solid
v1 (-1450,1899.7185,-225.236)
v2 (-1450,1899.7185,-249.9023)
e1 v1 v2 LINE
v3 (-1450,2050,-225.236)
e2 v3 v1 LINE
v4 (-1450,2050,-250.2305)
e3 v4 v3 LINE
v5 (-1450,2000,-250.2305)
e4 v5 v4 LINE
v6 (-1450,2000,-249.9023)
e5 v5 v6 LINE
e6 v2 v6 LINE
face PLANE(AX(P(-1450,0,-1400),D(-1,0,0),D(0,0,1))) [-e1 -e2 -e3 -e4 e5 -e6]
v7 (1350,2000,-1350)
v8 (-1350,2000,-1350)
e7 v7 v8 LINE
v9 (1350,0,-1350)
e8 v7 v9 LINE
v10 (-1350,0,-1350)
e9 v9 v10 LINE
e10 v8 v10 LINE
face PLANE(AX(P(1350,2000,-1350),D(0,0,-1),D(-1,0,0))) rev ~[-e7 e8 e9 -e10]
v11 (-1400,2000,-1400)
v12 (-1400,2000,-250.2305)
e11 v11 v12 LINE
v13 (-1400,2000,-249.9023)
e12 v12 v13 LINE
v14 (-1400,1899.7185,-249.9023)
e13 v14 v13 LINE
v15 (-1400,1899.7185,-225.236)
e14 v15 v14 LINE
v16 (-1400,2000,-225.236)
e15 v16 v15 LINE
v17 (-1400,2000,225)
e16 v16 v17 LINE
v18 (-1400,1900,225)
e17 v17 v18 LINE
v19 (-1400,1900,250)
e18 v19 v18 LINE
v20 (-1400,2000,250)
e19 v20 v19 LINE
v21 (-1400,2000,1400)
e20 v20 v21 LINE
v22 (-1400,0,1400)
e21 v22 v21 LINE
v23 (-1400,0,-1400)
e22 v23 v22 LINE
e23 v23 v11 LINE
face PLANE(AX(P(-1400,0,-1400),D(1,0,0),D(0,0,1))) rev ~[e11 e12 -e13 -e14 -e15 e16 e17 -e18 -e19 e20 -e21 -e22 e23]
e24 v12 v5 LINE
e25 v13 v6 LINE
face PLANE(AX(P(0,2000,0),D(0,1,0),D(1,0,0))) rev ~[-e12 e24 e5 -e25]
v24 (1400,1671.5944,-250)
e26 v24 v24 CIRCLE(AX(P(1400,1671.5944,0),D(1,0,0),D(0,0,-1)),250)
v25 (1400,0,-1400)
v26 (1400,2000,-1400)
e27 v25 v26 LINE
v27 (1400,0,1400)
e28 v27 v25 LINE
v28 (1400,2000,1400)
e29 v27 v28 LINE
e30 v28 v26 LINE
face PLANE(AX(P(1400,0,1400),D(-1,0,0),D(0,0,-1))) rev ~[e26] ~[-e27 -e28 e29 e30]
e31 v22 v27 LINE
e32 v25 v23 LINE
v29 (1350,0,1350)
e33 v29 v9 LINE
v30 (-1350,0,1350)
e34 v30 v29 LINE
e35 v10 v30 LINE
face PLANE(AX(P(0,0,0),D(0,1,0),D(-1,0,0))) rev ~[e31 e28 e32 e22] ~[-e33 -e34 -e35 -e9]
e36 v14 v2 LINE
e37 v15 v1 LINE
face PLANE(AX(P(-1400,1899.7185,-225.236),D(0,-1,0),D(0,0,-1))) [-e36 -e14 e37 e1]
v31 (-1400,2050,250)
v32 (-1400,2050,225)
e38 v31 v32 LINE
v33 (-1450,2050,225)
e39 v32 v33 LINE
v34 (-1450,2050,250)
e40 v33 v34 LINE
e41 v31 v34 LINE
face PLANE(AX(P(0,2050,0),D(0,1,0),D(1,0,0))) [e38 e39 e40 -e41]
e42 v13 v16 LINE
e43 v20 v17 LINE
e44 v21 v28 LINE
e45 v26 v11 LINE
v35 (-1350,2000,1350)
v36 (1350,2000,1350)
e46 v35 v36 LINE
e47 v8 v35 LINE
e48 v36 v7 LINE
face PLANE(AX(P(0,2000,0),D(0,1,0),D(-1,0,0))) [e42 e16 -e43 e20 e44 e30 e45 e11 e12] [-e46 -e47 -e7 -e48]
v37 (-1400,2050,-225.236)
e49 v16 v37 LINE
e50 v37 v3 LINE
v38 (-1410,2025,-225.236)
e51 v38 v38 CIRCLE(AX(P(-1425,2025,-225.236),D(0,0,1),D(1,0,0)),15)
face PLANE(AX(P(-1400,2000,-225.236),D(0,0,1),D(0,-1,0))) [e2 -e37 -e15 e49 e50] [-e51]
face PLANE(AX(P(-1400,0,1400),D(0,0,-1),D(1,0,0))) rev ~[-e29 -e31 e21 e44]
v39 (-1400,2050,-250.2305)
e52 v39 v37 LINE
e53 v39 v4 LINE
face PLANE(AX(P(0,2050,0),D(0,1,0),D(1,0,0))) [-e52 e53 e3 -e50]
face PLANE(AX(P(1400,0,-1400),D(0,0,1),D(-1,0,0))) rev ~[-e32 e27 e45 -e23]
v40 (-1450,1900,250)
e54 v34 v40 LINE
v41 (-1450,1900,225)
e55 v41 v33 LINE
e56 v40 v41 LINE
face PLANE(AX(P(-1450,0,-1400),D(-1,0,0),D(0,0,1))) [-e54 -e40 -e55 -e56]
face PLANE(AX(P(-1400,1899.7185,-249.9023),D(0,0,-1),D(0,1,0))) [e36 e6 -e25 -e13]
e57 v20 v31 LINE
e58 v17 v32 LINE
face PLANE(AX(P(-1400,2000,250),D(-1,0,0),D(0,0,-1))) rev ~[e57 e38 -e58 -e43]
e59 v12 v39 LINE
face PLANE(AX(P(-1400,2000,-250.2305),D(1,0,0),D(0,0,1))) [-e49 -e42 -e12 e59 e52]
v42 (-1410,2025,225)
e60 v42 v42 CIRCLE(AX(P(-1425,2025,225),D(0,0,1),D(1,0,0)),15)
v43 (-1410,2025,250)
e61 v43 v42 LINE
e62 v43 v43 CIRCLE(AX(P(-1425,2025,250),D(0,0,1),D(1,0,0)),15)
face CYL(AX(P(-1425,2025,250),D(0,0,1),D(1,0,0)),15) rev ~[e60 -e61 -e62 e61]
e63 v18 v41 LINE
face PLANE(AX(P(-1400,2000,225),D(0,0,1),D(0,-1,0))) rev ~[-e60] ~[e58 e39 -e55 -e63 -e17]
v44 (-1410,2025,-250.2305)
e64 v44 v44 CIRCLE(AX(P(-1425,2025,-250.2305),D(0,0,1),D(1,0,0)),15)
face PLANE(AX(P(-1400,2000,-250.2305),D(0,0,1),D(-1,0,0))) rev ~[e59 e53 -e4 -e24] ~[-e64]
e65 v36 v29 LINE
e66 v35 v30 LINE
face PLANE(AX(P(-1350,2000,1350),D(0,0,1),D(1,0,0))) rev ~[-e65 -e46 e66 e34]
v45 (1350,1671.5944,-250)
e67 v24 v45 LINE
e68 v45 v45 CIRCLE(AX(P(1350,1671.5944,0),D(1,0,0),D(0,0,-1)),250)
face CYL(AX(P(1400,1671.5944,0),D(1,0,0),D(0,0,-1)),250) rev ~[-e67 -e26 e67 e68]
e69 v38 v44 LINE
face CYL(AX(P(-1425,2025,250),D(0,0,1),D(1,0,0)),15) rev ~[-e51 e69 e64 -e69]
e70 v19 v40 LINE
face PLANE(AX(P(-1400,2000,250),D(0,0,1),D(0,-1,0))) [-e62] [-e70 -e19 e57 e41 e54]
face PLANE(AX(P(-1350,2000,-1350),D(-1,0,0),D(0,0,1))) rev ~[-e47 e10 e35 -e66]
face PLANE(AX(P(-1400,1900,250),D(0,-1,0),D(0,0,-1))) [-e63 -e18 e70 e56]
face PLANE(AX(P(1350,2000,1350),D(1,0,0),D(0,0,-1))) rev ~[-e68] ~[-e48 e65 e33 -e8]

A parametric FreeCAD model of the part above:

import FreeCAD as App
import Part
import Sketcher

V = App.Vector
Q = App.Units.Quantity


def add_polygon(sketch, points):
    """Adds a closed chain of lines whose ends are joined by coincident constraints."""
    first, n = sketch.GeometryCount, len(points)
    for a, b in zip(points, points[1:] + points[:1]):
        sketch.addGeometry(Part.LineSegment(App.Vector(*a, 0), App.Vector(*b, 0)), False)
    for i in range(n):
        sketch.addConstraint(Sketcher.Constraint("Coincident", first + i, 2, first + (i + 1) % n, 1))

doc = App.newDocument("Part")
body = doc.addObject("PartDesign::Body", "Body")

# Sketch on XZ plane
sketch1 = body.newObject("Sketcher::SketchObject", "Sketch")
sketch1.AttachmentSupport = (doc.getObject("XZ_Plane"), [""])
sketch1.MapMode = "FlatFace"
add_polygon(sketch1, [(-1400, -1400), (-1400, 1400), (1400, 1400), (1400, -1400)])  # lines 0-3
sketch1.addConstraint([
    Sketcher.Constraint("Vertical", 0),
    Sketcher.Constraint("Horizontal", 1),
    Sketcher.Constraint("Vertical", 2),
    Sketcher.Constraint("Horizontal", 3),
    Sketcher.Constraint("Symmetric", 0, 2, 2, 2, -1, 1),
    Sketcher.Constraint("Equal", 3, 0),
    Sketcher.Constraint("DistanceX", 1, 1, 1, 2, Q("2800 mm")),
])
pad1 = body.newObject("PartDesign::Pad", "Pad")
pad1.Profile = sketch1
pad1.Length = 2000
pad1.Reversed = True

# Sketch on YZ plane
sketch2 = body.newObject("Sketcher::SketchObject", "Sketch001")
sketch2.AttachmentSupport = (doc.getObject("YZ_Plane"), [""])
sketch2.MapMode = "FlatFace"
sketch2.AttachmentOffset = App.Placement(V(0, 0, 1400), App.Rotation())
sketch2.addGeometry(Part.Circle(V(1671.5944, 0, 0), V(0, 0, 1), 250), False)
sketch2.addConstraint([
    Sketcher.Constraint("PointOnObject", 0, 3, -1),
    Sketcher.Constraint("Diameter", 0, Q("500 mm")),
    Sketcher.Constraint("DistanceX", -1, 1, 0, 3, Q("1671.5944 mm")),
])
pocket1 = body.newObject("PartDesign::Pocket", "Pocket")
pocket1.Profile = sketch2
pocket1.Length = 2000

# Sketch on XZ plane
sketch3 = body.newObject("Sketcher::SketchObject", "Sketch002")
sketch3.AttachmentSupport = (doc.getObject("XZ_Plane"), [""])
sketch3.MapMode = "FlatFace"
sketch3.AttachmentOffset = App.Placement(V(0, 0, -2000), App.Rotation())
add_polygon(sketch3, [(-1350, -1350), (-1350, 1350), (1350, 1350), (1350, -1350)])  # lines 0-3
sketch3.addConstraint([
    Sketcher.Constraint("Vertical", 0),
    Sketcher.Constraint("Horizontal", 1),
    Sketcher.Constraint("Vertical", 2),
    Sketcher.Constraint("Horizontal", 3),
    Sketcher.Constraint("Symmetric", 0, 2, 2, 2, -1, 1),
    Sketcher.Constraint("Equal", 3, 0),
    Sketcher.Constraint("DistanceX", 1, 1, 1, 2, Q("2700 mm")),
])
pocket2 = body.newObject("PartDesign::Pocket", "Pocket001")
pocket2.Profile = sketch3
pocket2.Length = 2000
pocket2.Reversed = True

# Sketch on YZ plane
sketch4 = body.newObject("Sketcher::SketchObject", "Sketch003")
sketch4.AttachmentSupport = (doc.getObject("YZ_Plane"), [""])
sketch4.MapMode = "FlatFace"
sketch4.AttachmentOffset = App.Placement(V(0, 0, -1400), App.Rotation())
add_polygon(sketch4, [(1900, 250), (2000, 250), (2000, 225), (1900, 225)])  # lines 0-3
sketch4.addConstraint([
    Sketcher.Constraint("Horizontal", 0),
    Sketcher.Constraint("Vertical", 1),
    Sketcher.Constraint("Horizontal", 2),
    Sketcher.Constraint("Vertical", 3),
    Sketcher.Constraint("DistanceX", 0, 1, 0, 2, Q("100 mm")),
    Sketcher.Constraint("DistanceY", 1, 2, 1, 1, Q("25 mm")),
    Sketcher.Constraint("DistanceX", -1, 1, 0, 2, Q("2000 mm")),
    Sketcher.Constraint("DistanceY", -1, 1, 0, 2, Q("250 mm")),
])
pad2 = body.newObject("PartDesign::Pad", "Pad001")
pad2.Profile = sketch4
pad2.Length = 50
pad2.Reversed = True

# Sketch on YZ plane
sketch5 = body.newObject("Sketcher::SketchObject", "Sketch004")
sketch5.AttachmentSupport = (doc.getObject("YZ_Plane"), [""])
sketch5.MapMode = "FlatFace"
sketch5.AttachmentOffset = App.Placement(V(0, 0, -1400), App.Rotation())
add_polygon(sketch5, [(1899.7185, -225.236), (2000, -225.236), (2000, -249.9023), (1899.7185, -249.9023)])  # lines 0-3
sketch5.addConstraint([
    Sketcher.Constraint("Horizontal", 0),
    Sketcher.Constraint("Vertical", 1),
    Sketcher.Constraint("Horizontal", 2),
    Sketcher.Constraint("Vertical", 3),
    Sketcher.Constraint("DistanceX", -1, 1, 0, 2, Q("2000 mm")),
    Sketcher.Constraint("DistanceX", 0, 1, 0, 2, Q("100.2815 mm")),
    Sketcher.Constraint("DistanceY", 1, 2, 1, 1, Q("24.6663 mm")),
    Sketcher.Constraint("DistanceY", 0, 2, -1, 1, Q("225.236 mm")),
])
pad3 = body.newObject("PartDesign::Pad", "Pad002")
pad3.Profile = sketch5
pad3.Length = 50
pad3.Reversed = True

# Sketch on XZ plane
sketch6 = body.newObject("Sketcher::SketchObject", "Sketch005")
sketch6.AttachmentSupport = (doc.getObject("XZ_Plane"), [""])
sketch6.MapMode = "FlatFace"
sketch6.AttachmentOffset = App.Placement(V(0, 0, -2000), App.Rotation())
add_polygon(sketch6, [(-1450, -225.236), (-1400, -225.236), (-1400, -250.2305), (-1450, -250.2305)])  # lines 0-3
add_polygon(sketch6, [(-1450, 250), (-1400, 250), (-1400, 225), (-1450, 225)])  # lines 4-7
sketch6.addConstraint([
    Sketcher.Constraint("Horizontal", 0),
    Sketcher.Constraint("Vertical", 1),
    Sketcher.Constraint("Horizontal", 2),
    Sketcher.Constraint("Vertical", 3),
    Sketcher.Constraint("Horizontal", 4),
    Sketcher.Constraint("Vertical", 5),
    Sketcher.Constraint("Horizontal", 6),
    Sketcher.Constraint("Vertical", 7),
    Sketcher.Constraint("Vertical", 1, 2, 4, 2),
    Sketcher.Constraint("Vertical", 3, 2, 6, 2),
    Sketcher.Constraint("DistanceX", 0, 1, 0, 2, Q("50 mm")),
    Sketcher.Constraint("DistanceY", 5, 2, 5, 1, Q("25 mm")),
    Sketcher.Constraint("DistanceX", 0, 2, -1, 1, Q("1400 mm")),
    Sketcher.Constraint("DistanceY", -1, 1, 4, 2, Q("250 mm")),
    Sketcher.Constraint("DistanceY", 1, 2, 1, 1, Q("24.9945 mm")),
    Sketcher.Constraint("DistanceY", 0, 2, -1, 1, Q("225.236 mm")),
])
pad4 = body.newObject("PartDesign::Pad", "Pad003")
pad4.Profile = sketch6
pad4.Length = 50
pad4.Reversed = True

# Sketch on XY plane
sketch7 = body.newObject("Sketcher::SketchObject", "Sketch006")
sketch7.AttachmentSupport = (doc.getObject("XY_Plane"), [""])
sketch7.MapMode = "FlatFace"
sketch7.AttachmentOffset = App.Placement(V(0, 0, 250), App.Rotation())
sketch7.addGeometry(Part.Circle(V(-1425, 2025, 0), V(0, 0, 1), 15), False)
sketch7.addConstraint([
    Sketcher.Constraint("Diameter", 0, Q("30 mm")),
    Sketcher.Constraint("DistanceX", 0, 3, -1, 1, Q("1425 mm")),
    Sketcher.Constraint("DistanceY", -1, 1, 0, 3, Q("2025 mm")),
])
pocket3 = body.newObject("PartDesign::Pocket", "Pocket002")
pocket3.Profile = sketch7
pocket3.Length = 700

doc.recompute()
